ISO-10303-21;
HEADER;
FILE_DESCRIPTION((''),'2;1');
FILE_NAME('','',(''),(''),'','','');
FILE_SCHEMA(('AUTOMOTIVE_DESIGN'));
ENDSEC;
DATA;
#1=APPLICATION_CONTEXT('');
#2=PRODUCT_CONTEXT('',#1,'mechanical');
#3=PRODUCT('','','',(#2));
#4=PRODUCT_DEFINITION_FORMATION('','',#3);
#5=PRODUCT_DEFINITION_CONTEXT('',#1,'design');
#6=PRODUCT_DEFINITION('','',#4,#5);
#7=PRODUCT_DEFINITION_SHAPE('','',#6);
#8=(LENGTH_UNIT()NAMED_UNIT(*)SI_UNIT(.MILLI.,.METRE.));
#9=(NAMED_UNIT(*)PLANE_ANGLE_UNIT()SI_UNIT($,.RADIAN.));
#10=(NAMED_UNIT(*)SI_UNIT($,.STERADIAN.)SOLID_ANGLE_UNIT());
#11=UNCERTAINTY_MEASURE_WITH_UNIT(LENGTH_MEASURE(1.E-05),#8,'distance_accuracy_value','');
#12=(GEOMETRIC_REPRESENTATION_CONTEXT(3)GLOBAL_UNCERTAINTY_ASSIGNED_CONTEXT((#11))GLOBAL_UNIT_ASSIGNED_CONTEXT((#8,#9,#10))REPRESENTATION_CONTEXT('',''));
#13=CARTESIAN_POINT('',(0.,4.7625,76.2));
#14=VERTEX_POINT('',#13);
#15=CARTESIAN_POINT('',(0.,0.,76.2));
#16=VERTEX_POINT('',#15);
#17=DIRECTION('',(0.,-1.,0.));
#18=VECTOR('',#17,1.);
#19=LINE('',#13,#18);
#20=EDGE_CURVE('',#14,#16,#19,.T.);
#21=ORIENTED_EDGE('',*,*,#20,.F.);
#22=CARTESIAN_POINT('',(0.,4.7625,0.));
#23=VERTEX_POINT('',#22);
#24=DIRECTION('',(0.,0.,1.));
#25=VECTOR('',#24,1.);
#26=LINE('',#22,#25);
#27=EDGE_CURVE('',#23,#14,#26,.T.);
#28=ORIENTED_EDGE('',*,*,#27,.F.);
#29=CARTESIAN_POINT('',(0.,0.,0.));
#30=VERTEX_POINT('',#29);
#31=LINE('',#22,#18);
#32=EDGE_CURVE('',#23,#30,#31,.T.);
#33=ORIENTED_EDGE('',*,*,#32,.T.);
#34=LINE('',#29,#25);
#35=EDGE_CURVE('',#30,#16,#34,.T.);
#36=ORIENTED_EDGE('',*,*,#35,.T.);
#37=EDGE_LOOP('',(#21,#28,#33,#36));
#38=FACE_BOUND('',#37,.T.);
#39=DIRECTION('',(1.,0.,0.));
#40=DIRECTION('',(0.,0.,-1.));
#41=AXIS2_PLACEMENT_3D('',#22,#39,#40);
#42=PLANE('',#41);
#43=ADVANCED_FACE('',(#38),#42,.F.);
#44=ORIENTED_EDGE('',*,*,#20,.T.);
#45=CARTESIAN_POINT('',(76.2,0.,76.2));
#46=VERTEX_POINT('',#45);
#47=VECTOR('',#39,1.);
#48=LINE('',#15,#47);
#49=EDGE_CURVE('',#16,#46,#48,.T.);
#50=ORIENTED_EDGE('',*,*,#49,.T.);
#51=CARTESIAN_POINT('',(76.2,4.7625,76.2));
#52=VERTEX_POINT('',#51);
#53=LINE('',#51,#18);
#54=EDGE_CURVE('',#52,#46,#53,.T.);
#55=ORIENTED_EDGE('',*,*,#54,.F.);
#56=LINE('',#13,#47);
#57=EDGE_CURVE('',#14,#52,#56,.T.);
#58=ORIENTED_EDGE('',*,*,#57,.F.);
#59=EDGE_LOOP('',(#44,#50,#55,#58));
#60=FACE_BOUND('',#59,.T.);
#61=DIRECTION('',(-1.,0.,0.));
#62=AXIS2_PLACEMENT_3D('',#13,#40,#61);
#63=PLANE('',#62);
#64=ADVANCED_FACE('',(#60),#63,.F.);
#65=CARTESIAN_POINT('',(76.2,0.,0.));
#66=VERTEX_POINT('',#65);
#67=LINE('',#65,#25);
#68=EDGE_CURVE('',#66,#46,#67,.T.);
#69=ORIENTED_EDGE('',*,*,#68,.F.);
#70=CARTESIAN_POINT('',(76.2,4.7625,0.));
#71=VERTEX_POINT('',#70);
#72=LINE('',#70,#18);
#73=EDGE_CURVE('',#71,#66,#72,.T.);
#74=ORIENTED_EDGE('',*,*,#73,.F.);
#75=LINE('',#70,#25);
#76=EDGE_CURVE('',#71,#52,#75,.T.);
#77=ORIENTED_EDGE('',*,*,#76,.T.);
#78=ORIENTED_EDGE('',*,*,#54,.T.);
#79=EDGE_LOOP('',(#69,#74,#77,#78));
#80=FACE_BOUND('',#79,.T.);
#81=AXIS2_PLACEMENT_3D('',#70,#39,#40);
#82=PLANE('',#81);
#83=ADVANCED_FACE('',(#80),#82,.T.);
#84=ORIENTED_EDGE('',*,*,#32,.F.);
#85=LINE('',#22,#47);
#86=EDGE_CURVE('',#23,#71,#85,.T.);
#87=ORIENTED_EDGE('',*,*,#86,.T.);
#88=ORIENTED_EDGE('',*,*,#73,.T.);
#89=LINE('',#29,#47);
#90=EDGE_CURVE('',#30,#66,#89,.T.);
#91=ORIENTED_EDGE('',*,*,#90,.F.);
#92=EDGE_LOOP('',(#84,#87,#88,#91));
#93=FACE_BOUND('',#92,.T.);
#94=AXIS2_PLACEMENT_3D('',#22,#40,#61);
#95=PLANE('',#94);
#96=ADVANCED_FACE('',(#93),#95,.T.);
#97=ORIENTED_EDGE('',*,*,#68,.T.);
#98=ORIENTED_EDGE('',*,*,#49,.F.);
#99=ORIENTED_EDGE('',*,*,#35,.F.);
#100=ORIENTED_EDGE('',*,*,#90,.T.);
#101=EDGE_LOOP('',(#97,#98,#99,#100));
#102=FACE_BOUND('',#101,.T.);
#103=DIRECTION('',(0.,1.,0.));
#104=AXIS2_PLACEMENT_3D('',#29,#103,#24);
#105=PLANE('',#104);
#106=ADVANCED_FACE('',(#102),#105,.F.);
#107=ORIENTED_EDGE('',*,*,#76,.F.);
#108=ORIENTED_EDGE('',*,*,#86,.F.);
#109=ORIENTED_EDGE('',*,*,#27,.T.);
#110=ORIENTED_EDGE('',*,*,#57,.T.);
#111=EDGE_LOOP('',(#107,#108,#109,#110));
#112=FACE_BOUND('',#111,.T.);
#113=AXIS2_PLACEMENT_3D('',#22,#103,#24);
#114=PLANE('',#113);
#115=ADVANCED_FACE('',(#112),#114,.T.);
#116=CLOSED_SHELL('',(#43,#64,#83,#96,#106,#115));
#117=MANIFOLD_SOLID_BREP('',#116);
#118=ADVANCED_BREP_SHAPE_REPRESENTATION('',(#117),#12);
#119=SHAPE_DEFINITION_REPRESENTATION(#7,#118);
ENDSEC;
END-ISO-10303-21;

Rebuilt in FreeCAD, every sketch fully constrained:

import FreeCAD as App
import Part
import Sketcher
from FreeCAD import Vector
Q = App.Units.Quantity


def add_polygon(sketch, points):
    """Adds a closed chain of lines whose ends are joined by coincident constraints."""
    first, n = sketch.GeometryCount, len(points)
    for a, b in zip(points, points[1:] + points[:1]):
        sketch.addGeometry(Part.LineSegment(App.Vector(*a, 0), App.Vector(*b, 0)), False)
    for i in range(n):
        sketch.addConstraint(Sketcher.Constraint("Coincident", first + i, 2, first + (i + 1) % n, 1))

doc = App.newDocument("Part")
body = doc.addObject("PartDesign::Body", "Body")

sketch1 = body.newObject("Sketcher::SketchObject", "Sketch")
sketch1.AttachmentSupport = (doc.getObject("XZ_Plane"), [""])
sketch1.MapMode = "FlatFace"
add_polygon(sketch1, [(0, 0), (0, 76), (76, 76), (76, 0)])
sketch1.addConstraint(Sketcher.Constraint("Vertical", 0))
sketch1.addConstraint(Sketcher.Constraint("Horizontal", 1))
sketch1.addConstraint(Sketcher.Constraint("Vertical", 2))
sketch1.addConstraint(Sketcher.Constraint("Horizontal", 3))
sketch1.addConstraint(Sketcher.Constraint("Coincident", 3, 2, -1, 1))
sketch1.addConstraint(Sketcher.Constraint("Equal", 3, 0))
sketch1.addConstraint(Sketcher.Constraint("DistanceX", 1, 1, 1, 2, Q("3 in")))
pad1 = body.newObject("PartDesign::Pad", "Pad")
pad1.Profile = sketch1
pad1.Length = Q("0.1875 in")
pad1.Reversed = True

doc.recompute()
